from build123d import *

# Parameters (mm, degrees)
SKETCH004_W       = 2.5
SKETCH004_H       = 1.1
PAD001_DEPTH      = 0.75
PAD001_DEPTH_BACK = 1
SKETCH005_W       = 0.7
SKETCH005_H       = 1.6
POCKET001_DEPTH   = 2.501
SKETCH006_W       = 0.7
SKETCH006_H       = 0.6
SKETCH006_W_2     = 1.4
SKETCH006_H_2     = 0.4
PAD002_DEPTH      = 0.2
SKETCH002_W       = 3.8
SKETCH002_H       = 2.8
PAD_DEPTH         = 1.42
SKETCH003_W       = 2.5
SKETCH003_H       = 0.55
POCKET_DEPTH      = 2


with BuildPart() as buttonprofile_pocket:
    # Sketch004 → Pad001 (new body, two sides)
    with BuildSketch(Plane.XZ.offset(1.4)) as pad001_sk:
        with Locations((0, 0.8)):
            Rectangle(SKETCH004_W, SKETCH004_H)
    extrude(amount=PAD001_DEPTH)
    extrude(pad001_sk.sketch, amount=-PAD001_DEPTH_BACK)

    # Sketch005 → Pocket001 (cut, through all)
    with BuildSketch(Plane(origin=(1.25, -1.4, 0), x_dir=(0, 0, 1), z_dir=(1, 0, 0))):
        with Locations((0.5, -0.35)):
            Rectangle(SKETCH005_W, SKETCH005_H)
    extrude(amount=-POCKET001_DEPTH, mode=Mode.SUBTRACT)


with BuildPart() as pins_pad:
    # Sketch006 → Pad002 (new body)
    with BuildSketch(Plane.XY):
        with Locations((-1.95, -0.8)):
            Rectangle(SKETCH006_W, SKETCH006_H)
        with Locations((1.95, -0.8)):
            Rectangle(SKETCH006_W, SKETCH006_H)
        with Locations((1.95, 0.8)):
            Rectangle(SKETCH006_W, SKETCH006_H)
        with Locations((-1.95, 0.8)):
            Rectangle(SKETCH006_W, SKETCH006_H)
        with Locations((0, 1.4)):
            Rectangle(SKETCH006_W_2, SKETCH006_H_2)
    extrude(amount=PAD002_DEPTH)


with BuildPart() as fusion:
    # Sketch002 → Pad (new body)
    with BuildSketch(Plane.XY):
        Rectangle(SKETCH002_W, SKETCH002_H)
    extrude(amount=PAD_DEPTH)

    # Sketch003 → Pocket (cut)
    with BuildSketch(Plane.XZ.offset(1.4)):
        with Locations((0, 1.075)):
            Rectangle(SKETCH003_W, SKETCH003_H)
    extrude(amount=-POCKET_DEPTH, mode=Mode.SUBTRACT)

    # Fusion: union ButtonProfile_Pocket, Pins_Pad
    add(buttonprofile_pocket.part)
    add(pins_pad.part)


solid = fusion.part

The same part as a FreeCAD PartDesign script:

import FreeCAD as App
import Part
import Sketcher
from FreeCAD import Vector
Q = App.Units.Quantity


def add_polygon(sketch, points):
    """Adds a closed chain of lines whose ends are joined by coincident constraints."""
    first, n = sketch.GeometryCount, len(points)
    for a, b in zip(points, points[1:] + points[:1]):
        sketch.addGeometry(Part.LineSegment(App.Vector(*a, 0), App.Vector(*b, 0)), False)
    for i in range(n):
        sketch.addConstraint(Sketcher.Constraint("Coincident", first + i, 2, first + (i + 1) % n, 1))

doc = App.newDocument("Part")
body = doc.addObject("PartDesign::Body", "Body")

# Sketch on XZ plane
sketch1 = body.newObject("Sketcher::SketchObject", "Sketch")
sketch1.AttachmentSupport = (doc.getObject("XZ_Plane"), [""])
sketch1.MapMode = "FlatFace"
sketch1.AttachmentOffset = App.Placement(Vector(0, 0, 1.4), App.Rotation())
add_polygon(sketch1, [(-1.25, 1.35), (-1.25, 0.25), (1.25, 0.25), (1.25, 1.35)])  # lines 0-3
sketch1.addConstraint(Sketcher.Constraint("Vertical", 0))
sketch1.addConstraint(Sketcher.Constraint("Horizontal", 1))
sketch1.addConstraint(Sketcher.Constraint("Vertical", 2))
sketch1.addConstraint(Sketcher.Constraint("Horizontal", 3))
sketch1.addConstraint(Sketcher.Constraint("DistanceX", 1, 1, 1, 2, Q("2.5 mm")))
sketch1.addConstraint(Sketcher.Constraint("DistanceY", 0, 2, 0, 1, Q("1.1 mm")))
sketch1.addConstraint(Sketcher.Constraint("DistanceX", 0, 2, -1, 1, Q("1.25 mm")))
sketch1.addConstraint(Sketcher.Constraint("DistanceY", -1, 1, 0, 2, Q("0.25 mm")))
pad1 = body.newObject("PartDesign::Pad", "Pad")
pad1.Profile = sketch1
pad1.Type = "TwoLengths"
pad1.Length = 0.75
pad1.Length2 = 1

# Sketch on YZ plane
sketch2 = body.newObject("Sketcher::SketchObject", "Sketch001")
sketch2.AttachmentSupport = (doc.getObject("YZ_Plane"), [""])
sketch2.MapMode = "FlatFace"
sketch2.AttachmentOffset = App.Placement(Vector(0, 0, 1.25), App.Rotation())
add_polygon(sketch2, [(-1.85, 0.15), (-0.25, 0.15), (-0.25, 0.85), (-1.85, 0.85)])  # lines 0-3
sketch2.addConstraint(Sketcher.Constraint("Horizontal", 0))
sketch2.addConstraint(Sketcher.Constraint("Vertical", 1))
sketch2.addConstraint(Sketcher.Constraint("Horizontal", 2))
sketch2.addConstraint(Sketcher.Constraint("Vertical", 3))
sketch2.addConstraint(Sketcher.Constraint("DistanceX", 0, 1, 0, 2, Q("1.6 mm")))
sketch2.addConstraint(Sketcher.Constraint("DistanceY", 1, 1, 1, 2, Q("0.7 mm")))
sketch2.addConstraint(Sketcher.Constraint("DistanceX", 0, 2, -1, 1, Q("0.25 mm")))
sketch2.addConstraint(Sketcher.Constraint("DistanceY", -1, 1, 0, 2, Q("0.15 mm")))
pocket1 = body.newObject("PartDesign::Pocket", "Pocket")
pocket1.Profile = sketch2
pocket1.Type = "ThroughAll"
body2 = doc.addObject("PartDesign::Body", "Body001")
body2.AllowCompound = True

# Sketch on XY plane
sketch3 = body2.newObject("Sketcher::SketchObject", "Sketch002")
sketch3.AttachmentSupport = (doc.getObject("XY_Plane001"), [""])
sketch3.MapMode = "FlatFace"
add_polygon(sketch3, [(-2.3, -0.5), (-2.3, -1.1), (-1.6, -1.1), (-1.6, -0.5)])  # lines 0-3
add_polygon(sketch3, [(1.6, -0.5), (1.6, -1.1), (2.3, -1.1), (2.3, -0.5)])  # lines 4-7
add_polygon(sketch3, [(1.6, 1.1), (1.6, 0.5), (2.3, 0.5), (2.3, 1.1)])  # lines 8-11
add_polygon(sketch3, [(-2.3, 1.1), (-2.3, 0.5), (-1.6, 0.5), (-1.6, 1.1)])  # lines 12-15
add_polygon(sketch3, [(-0.7, 1.6), (-0.7, 1.2), (0.7, 1.2), (0.7, 1.6)])  # lines 16-19
sketch3.addConstraint(Sketcher.Constraint("Vertical", 0))
sketch3.addConstraint(Sketcher.Constraint("Horizontal", 1))
sketch3.addConstraint(Sketcher.Constraint("Vertical", 2))
sketch3.addConstraint(Sketcher.Constraint("Horizontal", 3))
sketch3.addConstraint(Sketcher.Constraint("Vertical", 4))
sketch3.addConstraint(Sketcher.Constraint("Horizontal", 5))
sketch3.addConstraint(Sketcher.Constraint("Vertical", 6))
sketch3.addConstraint(Sketcher.Constraint("Horizontal", 7))
sketch3.addConstraint(Sketcher.Constraint("Vertical", 8))
sketch3.addConstraint(Sketcher.Constraint("Horizontal", 9))
sketch3.addConstraint(Sketcher.Constraint("Vertical", 10))
sketch3.addConstraint(Sketcher.Constraint("Horizontal", 11))
sketch3.addConstraint(Sketcher.Constraint("Vertical", 12))
sketch3.addConstraint(Sketcher.Constraint("Horizontal", 13))
sketch3.addConstraint(Sketcher.Constraint("Vertical", 14))
sketch3.addConstraint(Sketcher.Constraint("Horizontal", 15))
sketch3.addConstraint(Sketcher.Constraint("Vertical", 16))
sketch3.addConstraint(Sketcher.Constraint("Horizontal", 17))
sketch3.addConstraint(Sketcher.Constraint("Vertical", 18))
sketch3.addConstraint(Sketcher.Constraint("Horizontal", 19))
sketch3.addConstraint(Sketcher.Constraint("Symmetric", 2, 2, 8, 2, -1, 1))
sketch3.addConstraint(Sketcher.Constraint("Symmetric", 0, 2, 10, 2, -1, 1))
sketch3.addConstraint(Sketcher.Constraint("Symmetric", 6, 2, 12, 2, -1, 1))
sketch3.addConstraint(Sketcher.Constraint("Symmetric", 4, 2, 14, 2, -1, 1))
sketch3.addConstraint(Sketcher.Constraint("Symmetric", 1, 2, 4, 2, -2))
sketch3.addConstraint(Sketcher.Constraint("Symmetric", 3, 2, 6, 2, -2))
sketch3.addConstraint(Sketcher.Constraint("DistanceX", 1, 1, 1, 2, Q("0.7 mm")))
sketch3.addConstraint(Sketcher.Constraint("DistanceX", 17, 1, 17, 2, Q("1.4 mm")))
sketch3.addConstraint(Sketcher.Constraint("DistanceY", 0, 2, 0, 1, Q("0.6 mm")))
sketch3.addConstraint(Sketcher.Constraint("DistanceY", 16, 2, 16, 1, Q("0.4 mm")))
sketch3.addConstraint(Sketcher.Constraint("DistanceY", 7, 2, 8, 2, Q("1 mm")))
sketch3.addConstraint(Sketcher.Constraint("DistanceX", 0, 2, -1, 1, Q("2.3 mm")))
sketch3.addConstraint(Sketcher.Constraint("DistanceX", 16, 2, -1, 1, Q("0.7 mm")))
sketch3.addConstraint(Sketcher.Constraint("DistanceY", -1, 1, 16, 2, Q("1.2 mm")))
pad2 = body2.newObject("PartDesign::Pad", "Pad001")
pad2.Profile = sketch3
pad2.Length = 0.2
body3 = doc.addObject("PartDesign::Body", "Body002")

# Sketch on XY plane
sketch4 = body3.newObject("Sketcher::SketchObject", "Sketch003")
sketch4.AttachmentSupport = (doc.getObject("XY_Plane002"), [""])
sketch4.MapMode = "FlatFace"
add_polygon(sketch4, [(-1.9, 1.4), (-1.9, -1.4), (1.9, -1.4), (1.9, 1.4)])  # lines 0-3
sketch4.addConstraint(Sketcher.Constraint("Vertical", 0))
sketch4.addConstraint(Sketcher.Constraint("Horizontal", 1))
sketch4.addConstraint(Sketcher.Constraint("Vertical", 2))
sketch4.addConstraint(Sketcher.Constraint("Horizontal", 3))
sketch4.addConstraint(Sketcher.Constraint("Symmetric", 0, 2, 2, 2, -1, 1))
sketch4.addConstraint(Sketcher.Constraint("DistanceX", 1, 1, 1, 2, Q("3.8 mm")))
sketch4.addConstraint(Sketcher.Constraint("DistanceY", 0, 2, 0, 1, Q("2.8 mm")))
pad3 = body3.newObject("PartDesign::Pad", "Pad002")
pad3.Profile = sketch4
pad3.Length = 1.42

# Sketch on XZ plane
sketch5 = body3.newObject("Sketcher::SketchObject", "Sketch004")
sketch5.AttachmentSupport = (doc.getObject("XZ_Plane002"), [""])
sketch5.MapMode = "FlatFace"
sketch5.AttachmentOffset = App.Placement(Vector(0, 0, 1.4), App.Rotation())
add_polygon(sketch5, [(-1.25, 1.35), (-1.25, 0.8), (1.25, 0.8), (1.25, 1.35)])  # lines 0-3
sketch5.addConstraint(Sketcher.Constraint("Vertical", 0))
sketch5.addConstraint(Sketcher.Constraint("Horizontal", 1))
sketch5.addConstraint(Sketcher.Constraint("Vertical", 2))
sketch5.addConstraint(Sketcher.Constraint("Horizontal", 3))
sketch5.addConstraint(Sketcher.Constraint("DistanceX", 1, 1, 1, 2, Q("2.5 mm")))
sketch5.addConstraint(Sketcher.Constraint("DistanceY", 0, 2, 0, 1, Q("0.55 mm")))
sketch5.addConstraint(Sketcher.Constraint("DistanceY", -1, 1, 0, 2, Q("0.8 mm")))
sketch5.addConstraint(Sketcher.Constraint("DistanceX", 0, 2, -1, 1, Q("1.25 mm")))
pocket2 = body3.newObject("PartDesign::Pocket", "Pocket001")
pocket2.Profile = sketch5
pocket2.Length = 2
doc.recompute()

boolean = body3.newObject("PartDesign::Boolean", "Boolean")
boolean.Type = "Fuse"
boolean.addObjects([body])
doc.recompute()

boolean2 = body3.newObject("PartDesign::Boolean", "Boolean001")
boolean2.Type = "Fuse"
boolean2.addObjects([body2])

doc.recompute()
